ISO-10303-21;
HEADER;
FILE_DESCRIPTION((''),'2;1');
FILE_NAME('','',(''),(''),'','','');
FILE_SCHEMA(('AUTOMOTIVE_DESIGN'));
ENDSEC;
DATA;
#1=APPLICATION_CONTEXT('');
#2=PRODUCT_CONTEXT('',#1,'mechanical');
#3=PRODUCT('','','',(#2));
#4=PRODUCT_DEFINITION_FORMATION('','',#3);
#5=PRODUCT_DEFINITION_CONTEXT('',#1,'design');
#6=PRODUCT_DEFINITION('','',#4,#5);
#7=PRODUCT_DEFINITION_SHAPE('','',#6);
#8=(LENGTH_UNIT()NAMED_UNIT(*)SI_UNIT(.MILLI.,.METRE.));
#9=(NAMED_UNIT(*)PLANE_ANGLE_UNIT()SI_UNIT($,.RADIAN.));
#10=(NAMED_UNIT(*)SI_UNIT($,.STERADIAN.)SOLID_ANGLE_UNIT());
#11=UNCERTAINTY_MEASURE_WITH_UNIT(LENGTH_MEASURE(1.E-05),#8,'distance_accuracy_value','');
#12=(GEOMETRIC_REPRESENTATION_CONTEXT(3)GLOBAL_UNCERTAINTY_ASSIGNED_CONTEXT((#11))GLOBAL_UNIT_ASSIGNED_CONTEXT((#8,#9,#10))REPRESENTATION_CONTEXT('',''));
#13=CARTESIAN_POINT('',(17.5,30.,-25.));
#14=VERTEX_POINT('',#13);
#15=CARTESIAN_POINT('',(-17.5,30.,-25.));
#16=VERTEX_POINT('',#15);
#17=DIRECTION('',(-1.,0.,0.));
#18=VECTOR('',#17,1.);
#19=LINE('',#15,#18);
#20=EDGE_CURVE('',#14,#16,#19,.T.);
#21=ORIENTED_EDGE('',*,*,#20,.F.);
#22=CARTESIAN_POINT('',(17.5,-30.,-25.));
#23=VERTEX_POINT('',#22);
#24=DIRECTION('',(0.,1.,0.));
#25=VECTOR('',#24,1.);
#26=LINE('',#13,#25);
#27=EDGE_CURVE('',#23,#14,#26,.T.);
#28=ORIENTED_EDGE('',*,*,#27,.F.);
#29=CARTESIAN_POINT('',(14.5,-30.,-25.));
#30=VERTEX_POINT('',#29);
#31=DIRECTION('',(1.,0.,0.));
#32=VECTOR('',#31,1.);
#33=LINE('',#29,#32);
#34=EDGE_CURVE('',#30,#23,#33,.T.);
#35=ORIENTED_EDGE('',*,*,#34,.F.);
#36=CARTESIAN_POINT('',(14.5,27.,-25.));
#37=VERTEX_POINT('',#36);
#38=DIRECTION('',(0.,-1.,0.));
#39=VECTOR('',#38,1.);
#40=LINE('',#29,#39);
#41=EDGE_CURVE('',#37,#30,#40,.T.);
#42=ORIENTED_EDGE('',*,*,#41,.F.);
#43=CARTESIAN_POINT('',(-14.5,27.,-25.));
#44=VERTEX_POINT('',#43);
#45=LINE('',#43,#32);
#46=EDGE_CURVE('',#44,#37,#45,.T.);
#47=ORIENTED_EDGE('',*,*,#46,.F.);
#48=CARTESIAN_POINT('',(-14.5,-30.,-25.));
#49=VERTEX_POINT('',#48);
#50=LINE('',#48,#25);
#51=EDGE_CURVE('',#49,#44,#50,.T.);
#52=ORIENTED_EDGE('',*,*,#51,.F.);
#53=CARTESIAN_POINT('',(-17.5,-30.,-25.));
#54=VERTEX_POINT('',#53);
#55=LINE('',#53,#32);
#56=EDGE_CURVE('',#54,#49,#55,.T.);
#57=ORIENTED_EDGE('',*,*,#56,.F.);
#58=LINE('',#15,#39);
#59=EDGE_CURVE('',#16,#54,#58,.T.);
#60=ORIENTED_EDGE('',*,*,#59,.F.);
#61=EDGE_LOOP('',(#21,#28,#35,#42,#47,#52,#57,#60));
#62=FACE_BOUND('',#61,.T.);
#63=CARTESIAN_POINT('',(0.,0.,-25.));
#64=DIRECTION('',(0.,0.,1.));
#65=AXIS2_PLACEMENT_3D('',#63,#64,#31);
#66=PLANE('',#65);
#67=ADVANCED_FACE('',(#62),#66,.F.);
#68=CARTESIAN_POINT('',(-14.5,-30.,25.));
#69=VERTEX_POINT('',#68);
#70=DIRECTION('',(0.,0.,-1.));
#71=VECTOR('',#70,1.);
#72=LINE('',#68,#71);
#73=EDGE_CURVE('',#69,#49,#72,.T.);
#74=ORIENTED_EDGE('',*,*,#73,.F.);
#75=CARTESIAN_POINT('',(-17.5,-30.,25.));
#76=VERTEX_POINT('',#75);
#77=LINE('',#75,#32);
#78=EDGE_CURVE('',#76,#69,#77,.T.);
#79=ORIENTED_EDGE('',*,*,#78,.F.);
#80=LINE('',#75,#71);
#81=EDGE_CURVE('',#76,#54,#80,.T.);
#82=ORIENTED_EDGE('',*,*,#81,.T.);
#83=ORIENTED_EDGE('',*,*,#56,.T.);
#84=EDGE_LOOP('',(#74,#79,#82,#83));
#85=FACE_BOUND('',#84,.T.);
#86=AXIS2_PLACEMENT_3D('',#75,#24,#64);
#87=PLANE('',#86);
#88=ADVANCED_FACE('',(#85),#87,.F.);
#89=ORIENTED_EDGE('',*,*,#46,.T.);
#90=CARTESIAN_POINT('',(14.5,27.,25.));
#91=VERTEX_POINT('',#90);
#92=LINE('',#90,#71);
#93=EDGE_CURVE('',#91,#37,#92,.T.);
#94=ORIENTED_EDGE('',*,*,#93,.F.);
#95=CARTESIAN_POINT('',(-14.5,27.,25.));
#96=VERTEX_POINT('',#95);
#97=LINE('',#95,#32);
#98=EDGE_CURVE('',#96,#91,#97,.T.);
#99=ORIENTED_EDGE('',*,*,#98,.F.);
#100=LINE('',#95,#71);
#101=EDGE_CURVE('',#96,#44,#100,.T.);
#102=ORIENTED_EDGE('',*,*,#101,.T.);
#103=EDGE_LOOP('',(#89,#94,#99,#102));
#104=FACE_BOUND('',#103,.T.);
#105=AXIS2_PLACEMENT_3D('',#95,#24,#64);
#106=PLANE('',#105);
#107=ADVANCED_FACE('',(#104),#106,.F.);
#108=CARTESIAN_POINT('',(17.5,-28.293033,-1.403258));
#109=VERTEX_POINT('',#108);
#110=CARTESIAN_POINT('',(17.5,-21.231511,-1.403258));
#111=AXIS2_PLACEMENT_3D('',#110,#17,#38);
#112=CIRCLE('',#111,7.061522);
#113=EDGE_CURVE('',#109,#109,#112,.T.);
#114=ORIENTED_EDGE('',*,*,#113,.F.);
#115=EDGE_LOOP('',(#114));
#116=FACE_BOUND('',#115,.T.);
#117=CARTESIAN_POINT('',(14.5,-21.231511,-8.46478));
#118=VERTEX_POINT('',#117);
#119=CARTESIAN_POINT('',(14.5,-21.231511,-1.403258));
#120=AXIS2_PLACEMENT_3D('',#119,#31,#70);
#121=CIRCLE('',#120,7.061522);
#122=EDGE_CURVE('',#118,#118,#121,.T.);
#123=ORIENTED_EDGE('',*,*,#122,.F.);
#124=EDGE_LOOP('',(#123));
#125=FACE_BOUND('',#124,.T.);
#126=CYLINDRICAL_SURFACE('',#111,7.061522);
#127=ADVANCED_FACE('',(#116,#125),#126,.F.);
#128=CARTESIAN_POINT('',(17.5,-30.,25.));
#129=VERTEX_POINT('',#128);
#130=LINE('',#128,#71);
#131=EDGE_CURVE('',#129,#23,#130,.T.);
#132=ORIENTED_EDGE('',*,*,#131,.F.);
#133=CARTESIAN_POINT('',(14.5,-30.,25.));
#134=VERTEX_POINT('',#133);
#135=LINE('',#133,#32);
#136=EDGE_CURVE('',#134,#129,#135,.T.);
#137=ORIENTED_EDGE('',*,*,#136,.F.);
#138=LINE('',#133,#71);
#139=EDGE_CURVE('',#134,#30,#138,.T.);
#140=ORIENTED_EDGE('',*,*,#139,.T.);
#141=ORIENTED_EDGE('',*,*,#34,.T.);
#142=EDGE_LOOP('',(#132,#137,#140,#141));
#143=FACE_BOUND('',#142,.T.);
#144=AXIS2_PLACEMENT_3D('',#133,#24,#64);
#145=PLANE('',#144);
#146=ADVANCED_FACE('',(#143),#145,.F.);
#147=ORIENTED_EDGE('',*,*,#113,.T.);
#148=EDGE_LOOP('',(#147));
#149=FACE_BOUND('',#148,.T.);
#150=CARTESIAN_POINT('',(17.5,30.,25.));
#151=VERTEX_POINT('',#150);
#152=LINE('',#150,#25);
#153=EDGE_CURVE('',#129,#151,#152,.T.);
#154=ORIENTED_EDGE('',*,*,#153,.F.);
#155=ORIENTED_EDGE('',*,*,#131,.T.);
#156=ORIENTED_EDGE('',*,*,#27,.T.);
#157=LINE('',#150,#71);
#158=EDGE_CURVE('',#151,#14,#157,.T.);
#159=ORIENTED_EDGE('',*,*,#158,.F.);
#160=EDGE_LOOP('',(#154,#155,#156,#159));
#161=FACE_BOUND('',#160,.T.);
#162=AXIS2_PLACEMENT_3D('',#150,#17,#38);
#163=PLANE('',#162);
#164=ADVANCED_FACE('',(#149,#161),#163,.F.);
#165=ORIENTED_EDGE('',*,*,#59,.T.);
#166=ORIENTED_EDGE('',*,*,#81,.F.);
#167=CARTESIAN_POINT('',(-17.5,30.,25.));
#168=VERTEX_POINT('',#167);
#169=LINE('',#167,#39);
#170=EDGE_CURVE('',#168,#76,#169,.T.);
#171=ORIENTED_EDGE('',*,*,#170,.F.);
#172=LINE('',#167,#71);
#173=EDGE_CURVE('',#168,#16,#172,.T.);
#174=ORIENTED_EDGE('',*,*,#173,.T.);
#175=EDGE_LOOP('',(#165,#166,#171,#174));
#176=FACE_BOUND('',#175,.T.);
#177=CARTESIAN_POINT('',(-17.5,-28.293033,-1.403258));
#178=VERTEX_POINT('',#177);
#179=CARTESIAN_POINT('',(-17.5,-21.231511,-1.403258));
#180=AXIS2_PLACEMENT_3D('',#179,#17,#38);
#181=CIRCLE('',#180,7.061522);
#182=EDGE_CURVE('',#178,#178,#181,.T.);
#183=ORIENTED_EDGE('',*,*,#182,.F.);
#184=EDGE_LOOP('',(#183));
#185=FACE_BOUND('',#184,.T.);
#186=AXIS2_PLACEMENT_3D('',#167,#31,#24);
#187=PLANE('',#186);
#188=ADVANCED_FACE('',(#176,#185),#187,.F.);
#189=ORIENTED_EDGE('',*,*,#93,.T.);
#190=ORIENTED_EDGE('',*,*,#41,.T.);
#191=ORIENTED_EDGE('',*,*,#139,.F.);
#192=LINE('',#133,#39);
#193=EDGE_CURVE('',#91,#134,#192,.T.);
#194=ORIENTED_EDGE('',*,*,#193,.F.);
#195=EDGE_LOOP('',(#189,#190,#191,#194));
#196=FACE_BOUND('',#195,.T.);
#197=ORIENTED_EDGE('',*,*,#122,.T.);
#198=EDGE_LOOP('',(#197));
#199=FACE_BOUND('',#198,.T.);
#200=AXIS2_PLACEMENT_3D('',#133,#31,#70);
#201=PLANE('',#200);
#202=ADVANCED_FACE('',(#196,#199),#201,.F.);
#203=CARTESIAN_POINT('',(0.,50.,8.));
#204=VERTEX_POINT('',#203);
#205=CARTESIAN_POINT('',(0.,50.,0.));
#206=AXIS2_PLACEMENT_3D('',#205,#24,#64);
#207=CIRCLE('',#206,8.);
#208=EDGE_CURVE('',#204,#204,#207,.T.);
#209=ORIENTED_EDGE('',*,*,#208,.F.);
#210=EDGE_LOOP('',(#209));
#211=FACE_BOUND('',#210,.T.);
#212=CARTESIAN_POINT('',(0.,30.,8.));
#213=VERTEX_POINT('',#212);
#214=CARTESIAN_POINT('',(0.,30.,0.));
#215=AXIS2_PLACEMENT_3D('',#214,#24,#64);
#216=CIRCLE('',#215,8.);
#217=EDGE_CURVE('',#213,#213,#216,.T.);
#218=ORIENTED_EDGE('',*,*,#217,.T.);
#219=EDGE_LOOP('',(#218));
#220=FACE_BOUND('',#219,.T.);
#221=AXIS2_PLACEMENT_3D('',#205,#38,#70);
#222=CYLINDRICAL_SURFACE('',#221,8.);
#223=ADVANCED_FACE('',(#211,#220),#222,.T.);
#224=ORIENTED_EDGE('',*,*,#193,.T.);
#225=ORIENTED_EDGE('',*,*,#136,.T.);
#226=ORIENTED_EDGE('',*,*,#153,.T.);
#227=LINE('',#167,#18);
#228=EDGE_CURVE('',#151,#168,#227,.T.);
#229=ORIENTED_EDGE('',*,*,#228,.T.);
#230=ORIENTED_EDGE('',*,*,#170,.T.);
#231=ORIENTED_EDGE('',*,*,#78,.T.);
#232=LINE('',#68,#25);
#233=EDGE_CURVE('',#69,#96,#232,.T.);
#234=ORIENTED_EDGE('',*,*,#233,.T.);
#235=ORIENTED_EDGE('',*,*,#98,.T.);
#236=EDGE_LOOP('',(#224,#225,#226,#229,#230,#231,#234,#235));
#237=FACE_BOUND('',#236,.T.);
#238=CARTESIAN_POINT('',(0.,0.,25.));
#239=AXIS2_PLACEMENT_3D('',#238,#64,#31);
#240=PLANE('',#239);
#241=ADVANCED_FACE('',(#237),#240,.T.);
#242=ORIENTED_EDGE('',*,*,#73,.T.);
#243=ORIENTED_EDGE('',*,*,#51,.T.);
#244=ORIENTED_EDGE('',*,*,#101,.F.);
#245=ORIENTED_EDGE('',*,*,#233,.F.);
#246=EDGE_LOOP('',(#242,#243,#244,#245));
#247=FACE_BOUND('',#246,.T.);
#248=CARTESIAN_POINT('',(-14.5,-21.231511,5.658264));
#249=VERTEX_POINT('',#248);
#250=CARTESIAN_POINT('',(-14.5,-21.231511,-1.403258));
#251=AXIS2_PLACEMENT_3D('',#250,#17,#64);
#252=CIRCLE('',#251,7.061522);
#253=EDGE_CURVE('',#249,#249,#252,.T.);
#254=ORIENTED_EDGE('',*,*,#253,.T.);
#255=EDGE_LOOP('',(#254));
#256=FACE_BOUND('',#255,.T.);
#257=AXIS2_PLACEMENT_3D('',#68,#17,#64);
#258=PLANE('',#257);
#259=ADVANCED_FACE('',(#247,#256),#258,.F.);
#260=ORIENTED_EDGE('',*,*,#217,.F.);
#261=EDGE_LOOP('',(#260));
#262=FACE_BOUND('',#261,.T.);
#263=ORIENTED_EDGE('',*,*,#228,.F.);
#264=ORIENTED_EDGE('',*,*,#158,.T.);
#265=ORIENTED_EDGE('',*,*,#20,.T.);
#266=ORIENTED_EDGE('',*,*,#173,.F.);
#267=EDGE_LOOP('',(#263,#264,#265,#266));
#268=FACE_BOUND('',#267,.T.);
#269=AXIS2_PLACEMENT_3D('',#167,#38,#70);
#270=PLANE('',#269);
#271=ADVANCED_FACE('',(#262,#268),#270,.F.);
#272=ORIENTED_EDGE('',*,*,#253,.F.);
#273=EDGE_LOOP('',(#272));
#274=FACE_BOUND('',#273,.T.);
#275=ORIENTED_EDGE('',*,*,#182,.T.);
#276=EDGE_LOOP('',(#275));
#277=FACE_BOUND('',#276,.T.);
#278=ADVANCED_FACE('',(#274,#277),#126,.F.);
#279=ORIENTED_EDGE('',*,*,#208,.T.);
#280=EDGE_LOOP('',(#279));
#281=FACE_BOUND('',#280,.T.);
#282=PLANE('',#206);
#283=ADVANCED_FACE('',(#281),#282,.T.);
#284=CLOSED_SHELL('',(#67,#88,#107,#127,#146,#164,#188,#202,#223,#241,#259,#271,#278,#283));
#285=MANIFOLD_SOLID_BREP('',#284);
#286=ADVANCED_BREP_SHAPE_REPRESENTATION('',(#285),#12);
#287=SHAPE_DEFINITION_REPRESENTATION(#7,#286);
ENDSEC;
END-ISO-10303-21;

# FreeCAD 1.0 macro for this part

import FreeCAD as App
import Part
import Sketcher
Q = App.Units.Quantity

doc = App.newDocument("Part")
body = doc.addObject("PartDesign::Body", "Body")

sketch1 = body.newObject("Sketcher::SketchObject", "Sketch")
sketch1.AttachmentSupport = (doc.getObject("XY_Plane"), [""])
sketch1.MapMode = "FlatFace"
sketch1.addGeometry([
    Part.LineSegment(App.Vector(14.5, -30, 0), App.Vector(17.5, -30, 0)),
    Part.LineSegment(App.Vector(17.5, -30, 0), App.Vector(17.5, 30, 0)),
    Part.LineSegment(App.Vector(17.5, 30, 0), App.Vector(-17.5, 30, 0)),
    Part.LineSegment(App.Vector(-17.5, 30, 0), App.Vector(-17.5, -30, 0)),
    Part.LineSegment(App.Vector(-17.5, -30, 0), App.Vector(-14.5, -30, 0)),
    Part.LineSegment(App.Vector(-14.5, -30, 0), App.Vector(-14.5, 27, 0)),
    Part.LineSegment(App.Vector(-14.5, 27, 0), App.Vector(14.5, 27, 0)),
    Part.LineSegment(App.Vector(14.5, 27, 0), App.Vector(14.5, -30, 0)),
], False)
sketch1.addConstraint([
    Sketcher.Constraint("Coincident", 0, 2, 1, 1),
    Sketcher.Constraint("Coincident", 1, 2, 2, 1),
    Sketcher.Constraint("Coincident", 2, 2, 3, 1),
    Sketcher.Constraint("Coincident", 3, 2, 4, 1),
    Sketcher.Constraint("Coincident", 4, 2, 5, 1),
    Sketcher.Constraint("Coincident", 5, 2, 6, 1),
    Sketcher.Constraint("Coincident", 6, 2, 7, 1),
    Sketcher.Constraint("Coincident", 7, 2, 0, 1),
    Sketcher.Constraint("Horizontal", 0),
    Sketcher.Constraint("Vertical", 1),
    Sketcher.Constraint("Horizontal", 2),
    Sketcher.Constraint("Vertical", 3),
    Sketcher.Constraint("Horizontal", 4),
    Sketcher.Constraint("Vertical", 5),
    Sketcher.Constraint("Horizontal", 6),
    Sketcher.Constraint("Vertical", 7),
    Sketcher.Constraint("Symmetric", 0, 2, 2, 2, -1, 1),
    Sketcher.Constraint("Symmetric", 4, 2, 7, 2, -2),
    Sketcher.Constraint("DistanceX", 0, 1, 0, 2, Q("3 mm")),
    Sketcher.Constraint("DistanceX", 2, 2, 2, 1, Q("35 mm")),
    Sketcher.Constraint("DistanceY", 1, 1, 1, 2, Q("60 mm")),
    Sketcher.Constraint("DistanceY", 5, 1, 5, 2, Q("57 mm")),
])
pad1 = body.newObject("PartDesign::Pad", "Pad")
pad1.Profile = sketch1
pad1.Length = 50
pad1.Midplane = True

sketch2 = body.newObject("Sketcher::SketchObject", "Sketch001")
sketch2.AttachmentSupport = (doc.getObject("XZ_Plane"), [""])
sketch2.MapMode = "FlatFace"
sketch2.AttachmentOffset = App.Placement(App.Vector(0, 0, -30), App.Rotation())
sketch2.addGeometry(Part.Circle(App.Vector(0, 0, 0), App.Vector(0, 0, 1), 8), False)
sketch2.addConstraint([
    Sketcher.Constraint("Coincident", 0, 3, -1, 1),
    Sketcher.Constraint("Diameter", 0, Q("16 mm")),
])
pad2 = body.newObject("PartDesign::Pad", "Pad001")
pad2.Profile = sketch2
pad2.Length = 20
pad2.Reversed = True

sketch3 = body.newObject("Sketcher::SketchObject", "Sketch002")
sketch3.AttachmentSupport = (doc.getObject("YZ_Plane"), [""])
sketch3.MapMode = "FlatFace"
sketch3.AttachmentOffset = App.Placement(App.Vector(0, 0, -17.5), App.Rotation())
sketch3.addGeometry(Part.Circle(App.Vector(-21, -1, 0), App.Vector(0, 0, 1), 7), False)
sketch3.addConstraint([
    Sketcher.Constraint("Diameter", 0, Q("14.123044 mm")),
    Sketcher.Constraint("DistanceX", 0, 3, -1, 1, Q("21.231511 mm")),
    Sketcher.Constraint("DistanceY", 0, 3, -1, 1, Q("1.403258 mm")),
])
pocket1 = body.newObject("PartDesign::Pocket", "Pocket")
pocket1.Profile = sketch3
pocket1.Type = "ThroughAll"
pocket1.Reversed = True

doc.recompute()
